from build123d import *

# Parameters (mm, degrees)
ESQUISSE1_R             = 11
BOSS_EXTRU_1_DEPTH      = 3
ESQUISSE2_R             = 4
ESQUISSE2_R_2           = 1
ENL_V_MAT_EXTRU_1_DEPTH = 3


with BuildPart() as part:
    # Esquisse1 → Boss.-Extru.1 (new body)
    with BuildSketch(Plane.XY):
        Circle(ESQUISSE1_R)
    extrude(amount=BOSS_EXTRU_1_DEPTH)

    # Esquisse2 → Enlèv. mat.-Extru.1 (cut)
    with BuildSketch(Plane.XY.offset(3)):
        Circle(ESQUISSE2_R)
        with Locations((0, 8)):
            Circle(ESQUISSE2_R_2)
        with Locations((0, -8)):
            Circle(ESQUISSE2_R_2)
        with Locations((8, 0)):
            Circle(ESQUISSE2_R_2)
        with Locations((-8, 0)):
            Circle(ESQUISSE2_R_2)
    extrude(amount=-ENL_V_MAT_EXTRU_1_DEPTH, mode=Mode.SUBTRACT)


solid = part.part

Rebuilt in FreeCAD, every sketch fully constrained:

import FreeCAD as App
import Part
import Sketcher

doc = App.newDocument("Part")
body = doc.addObject("PartDesign::Body", "Body")

# Sketch on XY plane
sketch1 = body.newObject("Sketcher::SketchObject", "Sketch")
sketch1.AttachmentSupport = (doc.getObject("XY_Plane"), [""])
sketch1.MapMode = "FlatFace"
sketch1.addGeometry(Part.Circle(App.Vector(0, 0, 0), App.Vector(0, 0, 1), 11), False)
sketch1.addConstraint([
    Sketcher.Constraint("Coincident", 0, 3, -1, 1),
    Sketcher.Constraint("Diameter", 0, 22.0),
])
pad1 = body.newObject("PartDesign::Pad", "Pad")
pad1.Profile = sketch1
pad1.Length = 3

# Sketch on XY plane
sketch2 = body.newObject("Sketcher::SketchObject", "Sketch001")
sketch2.AttachmentSupport = (doc.getObject("XY_Plane"), [""])
sketch2.MapMode = "FlatFace"
sketch2.AttachmentOffset = App.Placement(App.Vector(0, 0, 3), App.Rotation())
sketch2.addGeometry([
    Part.Circle(App.Vector(0, 0, 0), App.Vector(0, 0, 1), 4),  # 0
    Part.Circle(App.Vector(0, 8, 0), App.Vector(0, 0, 1), 1),  # 1
    Part.Circle(App.Vector(0, -8, 0), App.Vector(0, 0, 1), 1),  # 2
    Part.Circle(App.Vector(8, 0, 0), App.Vector(0, 0, 1), 1),  # 3
    Part.Circle(App.Vector(-8, 0, 0), App.Vector(0, 0, 1), 1),  # 4
], False)
sketch2.addConstraint([
    Sketcher.Constraint("Coincident", 0, 3, -1, 1),
    Sketcher.Constraint("Equal", 1, 2),
    Sketcher.Constraint("Equal", 2, 3),
    Sketcher.Constraint("Equal", 3, 4),
    Sketcher.Constraint("Symmetric", 1, 3, 2, 3, -1, 1),
    Sketcher.Constraint("Symmetric", 3, 3, 4, 3, -1, 1),
    Sketcher.Constraint("PointOnObject", 1, 3, -2),
    Sketcher.Constraint("PointOnObject", 3, 3, -1),
    Sketcher.Constraint("Diameter", 0, 8.0),
    Sketcher.Constraint("Diameter", 1, 2.0),
    Sketcher.Constraint("DistanceY", -1, 1, 1, 3, 8.0),
    Sketcher.Constraint("DistanceX", -1, 1, 3, 3, 8.0),
])
pocket1 = body.newObject("PartDesign::Pocket", "Pocket")
pocket1.Profile = sketch2
pocket1.Length = 3

doc.recompute()
